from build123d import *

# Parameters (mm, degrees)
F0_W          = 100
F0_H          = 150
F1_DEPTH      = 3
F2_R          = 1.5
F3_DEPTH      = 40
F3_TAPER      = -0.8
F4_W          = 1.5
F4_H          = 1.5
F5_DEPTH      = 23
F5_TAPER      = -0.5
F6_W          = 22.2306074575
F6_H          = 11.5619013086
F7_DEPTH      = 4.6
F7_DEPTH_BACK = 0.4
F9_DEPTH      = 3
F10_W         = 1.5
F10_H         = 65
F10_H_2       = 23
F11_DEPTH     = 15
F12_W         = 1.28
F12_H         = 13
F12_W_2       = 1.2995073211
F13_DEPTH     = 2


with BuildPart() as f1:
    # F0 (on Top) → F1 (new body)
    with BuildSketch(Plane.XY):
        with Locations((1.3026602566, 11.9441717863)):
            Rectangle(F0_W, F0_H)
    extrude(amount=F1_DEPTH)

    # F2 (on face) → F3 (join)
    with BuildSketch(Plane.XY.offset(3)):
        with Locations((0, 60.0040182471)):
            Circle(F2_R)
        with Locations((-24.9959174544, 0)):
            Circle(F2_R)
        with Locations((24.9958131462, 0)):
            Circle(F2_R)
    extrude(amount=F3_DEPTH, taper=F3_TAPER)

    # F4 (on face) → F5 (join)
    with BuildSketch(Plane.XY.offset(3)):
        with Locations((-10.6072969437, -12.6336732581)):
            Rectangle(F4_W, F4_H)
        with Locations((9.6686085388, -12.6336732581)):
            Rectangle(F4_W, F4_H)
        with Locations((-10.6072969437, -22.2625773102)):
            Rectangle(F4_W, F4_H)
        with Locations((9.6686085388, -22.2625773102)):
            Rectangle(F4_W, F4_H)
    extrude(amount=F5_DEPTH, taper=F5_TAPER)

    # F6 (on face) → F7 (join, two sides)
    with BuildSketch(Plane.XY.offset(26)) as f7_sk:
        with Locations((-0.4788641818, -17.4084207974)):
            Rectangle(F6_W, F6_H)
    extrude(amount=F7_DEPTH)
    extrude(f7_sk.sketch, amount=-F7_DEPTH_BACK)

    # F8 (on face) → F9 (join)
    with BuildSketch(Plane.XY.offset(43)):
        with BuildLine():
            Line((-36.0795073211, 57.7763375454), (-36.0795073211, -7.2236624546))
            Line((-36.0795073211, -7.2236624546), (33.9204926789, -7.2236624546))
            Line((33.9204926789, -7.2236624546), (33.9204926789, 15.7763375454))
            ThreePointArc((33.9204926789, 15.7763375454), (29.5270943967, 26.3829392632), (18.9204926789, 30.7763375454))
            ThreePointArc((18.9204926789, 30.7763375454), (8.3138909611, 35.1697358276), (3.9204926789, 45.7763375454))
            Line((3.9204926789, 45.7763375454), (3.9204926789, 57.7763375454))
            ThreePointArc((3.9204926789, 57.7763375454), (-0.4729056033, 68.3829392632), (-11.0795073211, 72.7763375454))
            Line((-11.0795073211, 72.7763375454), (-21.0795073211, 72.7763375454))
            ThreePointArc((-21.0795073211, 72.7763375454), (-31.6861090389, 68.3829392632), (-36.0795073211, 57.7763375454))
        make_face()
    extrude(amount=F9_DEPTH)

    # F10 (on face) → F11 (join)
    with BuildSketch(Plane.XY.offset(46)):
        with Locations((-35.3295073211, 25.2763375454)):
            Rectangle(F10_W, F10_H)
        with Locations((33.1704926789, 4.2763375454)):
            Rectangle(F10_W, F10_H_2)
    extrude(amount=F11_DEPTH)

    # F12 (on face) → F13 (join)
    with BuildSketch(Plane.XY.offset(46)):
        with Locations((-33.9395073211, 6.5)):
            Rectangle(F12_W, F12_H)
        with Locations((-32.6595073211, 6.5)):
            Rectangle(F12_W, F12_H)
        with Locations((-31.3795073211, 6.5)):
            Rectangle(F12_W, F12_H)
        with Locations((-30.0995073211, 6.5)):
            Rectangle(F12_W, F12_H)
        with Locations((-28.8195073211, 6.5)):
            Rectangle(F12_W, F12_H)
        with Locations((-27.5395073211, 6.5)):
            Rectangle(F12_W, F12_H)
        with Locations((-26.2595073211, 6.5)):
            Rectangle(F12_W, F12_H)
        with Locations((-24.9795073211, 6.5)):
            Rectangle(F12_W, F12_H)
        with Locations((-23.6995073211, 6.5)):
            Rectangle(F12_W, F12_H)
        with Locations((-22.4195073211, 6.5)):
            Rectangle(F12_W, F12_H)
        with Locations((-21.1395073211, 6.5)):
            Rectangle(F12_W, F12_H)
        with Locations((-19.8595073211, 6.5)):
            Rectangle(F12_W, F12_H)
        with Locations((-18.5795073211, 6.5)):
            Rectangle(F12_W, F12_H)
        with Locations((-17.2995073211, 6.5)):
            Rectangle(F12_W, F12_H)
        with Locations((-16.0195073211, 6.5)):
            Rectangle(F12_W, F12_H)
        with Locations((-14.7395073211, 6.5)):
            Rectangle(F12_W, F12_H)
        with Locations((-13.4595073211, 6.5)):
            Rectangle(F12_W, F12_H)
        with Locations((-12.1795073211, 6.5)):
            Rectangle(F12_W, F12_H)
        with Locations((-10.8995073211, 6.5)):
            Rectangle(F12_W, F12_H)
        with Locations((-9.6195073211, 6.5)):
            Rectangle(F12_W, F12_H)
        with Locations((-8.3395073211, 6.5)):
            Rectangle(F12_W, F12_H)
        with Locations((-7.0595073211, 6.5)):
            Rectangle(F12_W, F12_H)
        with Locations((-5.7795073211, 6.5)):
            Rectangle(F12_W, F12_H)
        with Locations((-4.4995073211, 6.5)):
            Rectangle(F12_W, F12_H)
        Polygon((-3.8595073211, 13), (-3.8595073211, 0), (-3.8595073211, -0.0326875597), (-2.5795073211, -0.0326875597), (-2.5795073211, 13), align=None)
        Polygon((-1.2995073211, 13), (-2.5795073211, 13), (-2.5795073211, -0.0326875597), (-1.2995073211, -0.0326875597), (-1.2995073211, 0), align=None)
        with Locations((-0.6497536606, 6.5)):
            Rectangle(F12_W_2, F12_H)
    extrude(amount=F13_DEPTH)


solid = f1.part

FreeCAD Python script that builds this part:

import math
import FreeCAD as App
import Part
import Sketcher


def add_polygon(sketch, points):
    """Adds a closed chain of lines whose ends are joined by coincident constraints."""
    first, n = sketch.GeometryCount, len(points)
    for a, b in zip(points, points[1:] + points[:1]):
        sketch.addGeometry(Part.LineSegment(App.Vector(*a, 0), App.Vector(*b, 0)), False)
    for i in range(n):
        sketch.addConstraint(Sketcher.Constraint("Coincident", first + i, 2, first + (i + 1) % n, 1))

doc = App.newDocument("Part")
body = doc.addObject("PartDesign::Body", "Body")

# Sketch on XY plane
sketch1 = body.newObject("Sketcher::SketchObject", "Sketch")
sketch1.AttachmentSupport = (doc.getObject("XY_Plane"), [""])
sketch1.MapMode = "FlatFace"
add_polygon(sketch1, [(-49, 87), (-49, -63), (51, -63), (51, 87)])  # lines 0-3
sketch1.addConstraint([
    Sketcher.Constraint("Vertical", 0),
    Sketcher.Constraint("Horizontal", 1),
    Sketcher.Constraint("Vertical", 2),
    Sketcher.Constraint("Horizontal", 3),
    Sketcher.Constraint("DistanceX", 1, 1, 1, 2, 100.0),
    Sketcher.Constraint("DistanceY", 0, 2, 0, 1, 150.0),
    Sketcher.Constraint("DistanceX", 0, 2, -1, 1, 48.69734),
    Sketcher.Constraint("DistanceY", 0, 2, -1, 1, 63.055828),
])
pad1 = body.newObject("PartDesign::Pad", "Pad")
pad1.Profile = sketch1
pad1.Length = 3

# Sketch on XY plane
sketch2 = body.newObject("Sketcher::SketchObject", "Sketch001")
sketch2.AttachmentSupport = (doc.getObject("XY_Plane"), [""])
sketch2.MapMode = "FlatFace"
sketch2.AttachmentOffset = App.Placement(App.Vector(0, 0, 3), App.Rotation())
sketch2.addGeometry([
    Part.Circle(App.Vector(0, 60, 0), App.Vector(0, 0, 1), 1.5),
    Part.Circle(App.Vector(-25, 0, 0), App.Vector(0, 0, 1), 1.5),
    Part.Circle(App.Vector(25, 0, 0), App.Vector(0, 0, 1), 1.5),
], False)
sketch2.addConstraint([
    Sketcher.Constraint("Equal", 0, 1),
    Sketcher.Constraint("Equal", 1, 2),
    Sketcher.Constraint("PointOnObject", 0, 3, -2),
    Sketcher.Constraint("PointOnObject", 1, 3, -1),
    Sketcher.Constraint("PointOnObject", 2, 3, -1),
    Sketcher.Constraint("Diameter", 0, 3.0),
    Sketcher.Constraint("DistanceY", -1, 1, 0, 3, 60.004018),
    Sketcher.Constraint("DistanceX", 1, 3, 2, 3, 49.991731),
    Sketcher.Constraint("DistanceX", 1, 3, -1, 1, 24.995917),
])
pad2 = body.newObject("PartDesign::Pad", "Pad001")
pad2.Profile = sketch2
pad2.Length = 40
pad2.TaperAngle = 0.8

# Sketch on XY plane
sketch3 = body.newObject("Sketcher::SketchObject", "Sketch002")
sketch3.AttachmentSupport = (doc.getObject("XY_Plane"), [""])
sketch3.MapMode = "FlatFace"
sketch3.AttachmentOffset = App.Placement(App.Vector(0, 0, 3), App.Rotation())
add_polygon(sketch3, [(-11.4, -11.9), (-11.4, -13.4), (-9.9, -13.4), (-9.9, -11.9)])  # lines 0-3
add_polygon(sketch3, [(8.9, -11.9), (8.9, -13.4), (10.4, -13.4), (10.4, -11.9)])  # lines 4-7
add_polygon(sketch3, [(-11.4, -21.5), (-11.4, -23), (-9.9, -23), (-9.9, -21.5)])  # lines 8-11
add_polygon(sketch3, [(8.9, -21.5), (8.9, -23), (10.4, -23), (10.4, -21.5)])  # lines 12-15
sketch3.addConstraint([
    Sketcher.Constraint("Vertical", 0),
    Sketcher.Constraint("Horizontal", 1),
    Sketcher.Constraint("Vertical", 2),
    Sketcher.Constraint("Horizontal", 3),
    Sketcher.Constraint("Vertical", 4),
    Sketcher.Constraint("Horizontal", 5),
    Sketcher.Constraint("Vertical", 6),
    Sketcher.Constraint("Horizontal", 7),
    Sketcher.Constraint("Vertical", 8),
    Sketcher.Constraint("Horizontal", 9),
    Sketcher.Constraint("Vertical", 10),
    Sketcher.Constraint("Horizontal", 11),
    Sketcher.Constraint("Vertical", 12),
    Sketcher.Constraint("Horizontal", 13),
    Sketcher.Constraint("Vertical", 14),
    Sketcher.Constraint("Horizontal", 15),
    Sketcher.Constraint("Horizontal", 1, 2, 4, 2),
    Sketcher.Constraint("Horizontal", 3, 2, 6, 2),
    Sketcher.Constraint("Horizontal", 9, 2, 12, 2),
    Sketcher.Constraint("Horizontal", 11, 2, 14, 2),
    Sketcher.Constraint("Vertical", 3, 2, 8, 2),
    Sketcher.Constraint("Vertical", 2, 2, 9, 2),
    Sketcher.Constraint("Vertical", 7, 2, 12, 2),
    Sketcher.Constraint("Vertical", 6, 2, 13, 2),
    Sketcher.Constraint("Equal", 3, 5),
    Sketcher.Constraint("Equal", 15, 0),
    Sketcher.Constraint("Equal", 6, 8),
    Sketcher.Constraint("DistanceX", 1, 1, 1, 2, 1.5),
    Sketcher.Constraint("DistanceX", -1, 1, 4, 2, 8.918609),
    Sketcher.Constraint("DistanceX", 0, 2, -1, 1, 11.357297),
    Sketcher.Constraint("DistanceY", 0, 2, -1, 1, 13.383673),
    Sketcher.Constraint("DistanceY", 8, 2, -1, 1, 23.012577),
])
pad3 = body.newObject("PartDesign::Pad", "Pad002")
pad3.Profile = sketch3
pad3.Length = 23
pad3.TaperAngle = 0.5

# Sketch on XY plane
sketch4 = body.newObject("Sketcher::SketchObject", "Sketch003")
sketch4.AttachmentSupport = (doc.getObject("XY_Plane"), [""])
sketch4.MapMode = "FlatFace"
sketch4.AttachmentOffset = App.Placement(App.Vector(0, 0, 26), App.Rotation())
add_polygon(sketch4, [(-12, -12), (-12, -23), (11, -23), (11, -12)])  # lines 0-3
sketch4.addConstraint([
    Sketcher.Constraint("Vertical", 0),
    Sketcher.Constraint("Horizontal", 1),
    Sketcher.Constraint("Vertical", 2),
    Sketcher.Constraint("Horizontal", 3),
    Sketcher.Constraint("DistanceY", 0, 2, 0, 1, 11.561901),
    Sketcher.Constraint("DistanceX", 1, 1, 1, 2, 22.230607),
    Sketcher.Constraint("DistanceY", 0, 2, -1, 1, 23.189371),
    Sketcher.Constraint("DistanceX", -1, 1, 1, 2, 10.63644),
])
pad4 = body.newObject("PartDesign::Pad", "Pad003")
pad4.Profile = sketch4
pad4.Type = "TwoLengths"
pad4.Length = 4.6
pad4.Length2 = 0.4

# Sketch on XY plane
sketch5 = body.newObject("Sketcher::SketchObject", "Sketch004")
sketch5.AttachmentSupport = (doc.getObject("XY_Plane"), [""])
sketch5.MapMode = "FlatFace"
sketch5.AttachmentOffset = App.Placement(App.Vector(0, 0, 43), App.Rotation())
sketch5.addGeometry([
    Part.LineSegment(App.Vector(-36, 58, 0), App.Vector(-36, -7, 0)),  # 0
    Part.LineSegment(App.Vector(-36, -7, 0), App.Vector(34, -7, 0)),  # 1
    Part.LineSegment(App.Vector(34, -7, 0), App.Vector(34, 16, 0)),  # 2
    Part.ArcOfCircle(Part.Circle(App.Vector(19, 16, 0), App.Vector(0, 0, 1), 15), math.radians(0), math.radians(90)),  # 3
    Part.ArcOfCircle(Part.Circle(App.Vector(19, 46, 0), App.Vector(0, 0, 1), 15), math.radians(180), math.radians(270)),  # 4
    Part.LineSegment(App.Vector(4, 46, 0), App.Vector(4, 58, 0)),  # 5
    Part.ArcOfCircle(Part.Circle(App.Vector(-11, 58, 0), App.Vector(0, 0, 1), 15), math.radians(0), math.radians(90)),  # 6
    Part.LineSegment(App.Vector(-11, 73, 0), App.Vector(-21, 73, 0)),  # 7
    Part.ArcOfCircle(Part.Circle(App.Vector(-21, 58, 0), App.Vector(0, 0, 1), 15), math.radians(90), math.radians(180)),  # 8
], False)
sketch5.addConstraint([
    Sketcher.Constraint("Coincident", 0, 2, 1, 1),
    Sketcher.Constraint("Coincident", 1, 2, 2, 1),
    Sketcher.Constraint("Tangent", 2, 2, 3, 1),
    Sketcher.Constraint("Tangent", 3, 2, 4, 2),
    Sketcher.Constraint("Tangent", 4, 1, 5, 1),
    Sketcher.Constraint("Tangent", 5, 2, 6, 1),
    Sketcher.Constraint("Tangent", 6, 2, 7, 1),
    Sketcher.Constraint("Tangent", 7, 2, 8, 1),
    Sketcher.Constraint("Tangent", 8, 2, 0, 1),
    Sketcher.Constraint("Vertical", 0),
    Sketcher.Constraint("Horizontal", 1),
    Sketcher.Constraint("Vertical", 2),
    Sketcher.Constraint("Vertical", 5),
    Sketcher.Constraint("Horizontal", 7),
    Sketcher.Constraint("Equal", 3, 4),
    Sketcher.Constraint("Equal", 4, 6),
    Sketcher.Constraint("Equal", 6, 8),
    Sketcher.Constraint("Vertical", 3, 3, 4, 3),
    Sketcher.Constraint("Radius", 3, 15.0),
    Sketcher.Constraint("DistanceX", 1, 1, 1, 2, 70.0),
    Sketcher.Constraint("DistanceY", 0, 2, 0, 1, 65.0),
    Sketcher.Constraint("DistanceY", 2, 1, 2, 2, 23.0),
    Sketcher.Constraint("DistanceX", -1, 1, 3, 3, 18.920493),
    Sketcher.Constraint("DistanceY", -1, 1, 3, 3, 15.776338),
])
pad5 = body.newObject("PartDesign::Pad", "Pad004")
pad5.Profile = sketch5
pad5.Length = 3

# Sketch on XY plane
sketch6 = body.newObject("Sketcher::SketchObject", "Sketch005")
sketch6.AttachmentSupport = (doc.getObject("XY_Plane"), [""])
sketch6.MapMode = "FlatFace"
sketch6.AttachmentOffset = App.Placement(App.Vector(0, 0, 46), App.Rotation())
add_polygon(sketch6, [(-36.1, 57.8), (-36.1, -7.2), (-34.6, -7.2), (-34.6, 57.8)])  # lines 0-3
add_polygon(sketch6, [(32.4, 15.8), (32.4, -7.2), (33.9, -7.2), (33.9, 15.8)])  # lines 4-7
sketch6.addConstraint([
    Sketcher.Constraint("Vertical", 0),
    Sketcher.Constraint("Horizontal", 1),
    Sketcher.Constraint("Vertical", 2),
    Sketcher.Constraint("Horizontal", 3),
    Sketcher.Constraint("Vertical", 4),
    Sketcher.Constraint("Horizontal", 5),
    Sketcher.Constraint("Vertical", 6),
    Sketcher.Constraint("Horizontal", 7),
    Sketcher.Constraint("Horizontal", 1, 2, 4, 2),
    Sketcher.Constraint("Equal", 3, 5),
    Sketcher.Constraint("DistanceY", 0, 2, 0, 1, 65.0),
    Sketcher.Constraint("DistanceY", 4, 2, 4, 1, 23.0),
    Sketcher.Constraint("DistanceX", 1, 1, 1, 2, 1.5),
    Sketcher.Constraint("DistanceX", 1, 2, 4, 2, 67.0),
    Sketcher.Constraint("DistanceX", 0, 2, -1, 1, 36.079507),
    Sketcher.Constraint("DistanceY", 0, 2, -1, 1, 7.223662),
])
pad6 = body.newObject("PartDesign::Pad", "Pad005")
pad6.Profile = sketch6
pad6.Length = 15

# Sketch on XY plane
sketch7 = body.newObject("Sketcher::SketchObject", "Sketch006")
sketch7.AttachmentSupport = (doc.getObject("XY_Plane"), [""])
sketch7.MapMode = "FlatFace"
sketch7.AttachmentOffset = App.Placement(App.Vector(0, 0, 46), App.Rotation())
add_polygon(sketch7, [(-34.58, 13), (-34.58, 0), (-3.86, 0), (-3.86, -0.033), (-1.3, -0.033), (-1.3, 0), (0, 0), (0, 13)])  # lines 0-7
sketch7.addConstraint([
    Sketcher.Constraint("Vertical", 0),
    Sketcher.Constraint("Horizontal", 1),
    Sketcher.Constraint("Vertical", 2),
    Sketcher.Constraint("Horizontal", 3),
    Sketcher.Constraint("Vertical", 4),
    Sketcher.Constraint("Horizontal", 5),
    Sketcher.Constraint("Vertical", 6),
    Sketcher.Constraint("Horizontal", 7),
    Sketcher.Constraint("Coincident", 5, 2, -1, 1),
    Sketcher.Constraint("PointOnObject", 0, 2, -1),
    Sketcher.Constraint("DistanceY", 0, 2, 0, 1, 13.0),
    Sketcher.Constraint("DistanceX", 1, 1, 1, 2, 30.72),
    Sketcher.Constraint("DistanceX", 3, 1, 3, 2, 2.56),
    Sketcher.Constraint("DistanceX", 5, 1, 5, 2, 1.299507),
    Sketcher.Constraint("DistanceY", 2, 2, 2, 1, 0.032688),
])
pad7 = body.newObject("PartDesign::Pad", "Pad006")
pad7.Profile = sketch7
pad7.Length = 2

doc.recompute()
